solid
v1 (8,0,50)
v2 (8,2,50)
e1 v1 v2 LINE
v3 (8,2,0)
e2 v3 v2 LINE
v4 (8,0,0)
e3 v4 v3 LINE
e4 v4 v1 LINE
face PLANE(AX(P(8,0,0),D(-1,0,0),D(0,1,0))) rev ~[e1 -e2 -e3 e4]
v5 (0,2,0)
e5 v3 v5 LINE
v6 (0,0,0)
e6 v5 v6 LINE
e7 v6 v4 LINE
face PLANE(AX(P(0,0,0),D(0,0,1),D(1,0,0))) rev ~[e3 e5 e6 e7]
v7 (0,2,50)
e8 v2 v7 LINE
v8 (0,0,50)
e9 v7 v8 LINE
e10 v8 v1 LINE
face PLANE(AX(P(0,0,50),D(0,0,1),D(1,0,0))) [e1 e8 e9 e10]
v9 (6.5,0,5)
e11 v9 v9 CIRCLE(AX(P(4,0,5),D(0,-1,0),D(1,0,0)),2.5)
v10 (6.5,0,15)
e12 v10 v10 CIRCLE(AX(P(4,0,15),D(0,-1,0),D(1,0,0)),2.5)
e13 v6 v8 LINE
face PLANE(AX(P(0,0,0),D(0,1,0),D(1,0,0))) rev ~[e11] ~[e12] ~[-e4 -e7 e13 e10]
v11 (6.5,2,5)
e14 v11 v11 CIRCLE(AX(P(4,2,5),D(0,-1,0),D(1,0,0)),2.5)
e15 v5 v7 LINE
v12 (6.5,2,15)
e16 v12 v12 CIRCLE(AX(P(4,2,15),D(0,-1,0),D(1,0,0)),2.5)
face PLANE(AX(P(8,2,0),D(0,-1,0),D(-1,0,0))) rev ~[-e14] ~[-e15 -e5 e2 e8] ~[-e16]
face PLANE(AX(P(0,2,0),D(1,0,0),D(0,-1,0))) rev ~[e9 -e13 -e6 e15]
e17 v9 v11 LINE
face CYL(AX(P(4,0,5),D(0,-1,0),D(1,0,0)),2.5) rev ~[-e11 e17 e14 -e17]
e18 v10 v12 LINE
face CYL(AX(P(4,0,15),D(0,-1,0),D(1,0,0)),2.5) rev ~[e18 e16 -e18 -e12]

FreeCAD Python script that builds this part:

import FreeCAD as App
import Part
import Sketcher

doc = App.newDocument("Part")
body = doc.addObject("PartDesign::Body", "Body")

# Sketch on XY plane
sketch1 = body.newObject("Sketcher::SketchObject", "Sketch")
sketch1.AttachmentSupport = (doc.getObject("XY_Plane"), [""])
sketch1.MapMode = "FlatFace"
sketch1.addGeometry([
    Part.LineSegment(App.Vector(0, 2, 0), App.Vector(0, 0, 0)),
    Part.LineSegment(App.Vector(0, 0, 0), App.Vector(8, 0, 0)),
    Part.LineSegment(App.Vector(8, 0, 0), App.Vector(8, 2, 0)),
    Part.LineSegment(App.Vector(8, 2, 0), App.Vector(0, 2, 0)),
], False)
sketch1.addConstraint([
    Sketcher.Constraint("Coincident", 0, 2, 1, 1),
    Sketcher.Constraint("Coincident", 1, 2, 2, 1),
    Sketcher.Constraint("Coincident", 2, 2, 3, 1),
    Sketcher.Constraint("Coincident", 3, 2, 0, 1),
    Sketcher.Constraint("Vertical", 0),
    Sketcher.Constraint("Horizontal", 1),
    Sketcher.Constraint("Vertical", 2),
    Sketcher.Constraint("Horizontal", 3),
    Sketcher.Constraint("Coincident", 0, 2, -1, 1),
    Sketcher.Constraint("DistanceX", 1, 1, 1, 2, 8.0),
    Sketcher.Constraint("DistanceY", 0, 2, 0, 1, 2.0),
])
pad1 = body.newObject("PartDesign::Pad", "Pad")
pad1.Profile = sketch1
pad1.Length = 50

# Sketch on XZ plane
sketch2 = body.newObject("Sketcher::SketchObject", "Sketch001")
sketch2.AttachmentSupport = (doc.getObject("XZ_Plane"), [""])
sketch2.MapMode = "FlatFace"
sketch2.addGeometry([
    Part.Circle(App.Vector(4, 5, 0), App.Vector(0, 0, 1), 2.5),
    Part.Circle(App.Vector(4, 15, 0), App.Vector(0, 0, 1), 2.5),
], False)
sketch2.addConstraint([
    Sketcher.Constraint("Equal", 0, 1),
    Sketcher.Constraint("Vertical", 0, 3, 1, 3),
    Sketcher.Constraint("Diameter", 0, 5.0),
    Sketcher.Constraint("DistanceX", -1, 1, 0, 3, 4.0),
    Sketcher.Constraint("DistanceY", -1, 1, 0, 3, 5.0),
    Sketcher.Constraint("DistanceY", 0, 3, 1, 3, 10.0),
])
pocket1 = body.newObject("PartDesign::Pocket", "Pocket")
pocket1.Profile = sketch2
pocket1.Type = "UpToFirst"

doc.recompute()
